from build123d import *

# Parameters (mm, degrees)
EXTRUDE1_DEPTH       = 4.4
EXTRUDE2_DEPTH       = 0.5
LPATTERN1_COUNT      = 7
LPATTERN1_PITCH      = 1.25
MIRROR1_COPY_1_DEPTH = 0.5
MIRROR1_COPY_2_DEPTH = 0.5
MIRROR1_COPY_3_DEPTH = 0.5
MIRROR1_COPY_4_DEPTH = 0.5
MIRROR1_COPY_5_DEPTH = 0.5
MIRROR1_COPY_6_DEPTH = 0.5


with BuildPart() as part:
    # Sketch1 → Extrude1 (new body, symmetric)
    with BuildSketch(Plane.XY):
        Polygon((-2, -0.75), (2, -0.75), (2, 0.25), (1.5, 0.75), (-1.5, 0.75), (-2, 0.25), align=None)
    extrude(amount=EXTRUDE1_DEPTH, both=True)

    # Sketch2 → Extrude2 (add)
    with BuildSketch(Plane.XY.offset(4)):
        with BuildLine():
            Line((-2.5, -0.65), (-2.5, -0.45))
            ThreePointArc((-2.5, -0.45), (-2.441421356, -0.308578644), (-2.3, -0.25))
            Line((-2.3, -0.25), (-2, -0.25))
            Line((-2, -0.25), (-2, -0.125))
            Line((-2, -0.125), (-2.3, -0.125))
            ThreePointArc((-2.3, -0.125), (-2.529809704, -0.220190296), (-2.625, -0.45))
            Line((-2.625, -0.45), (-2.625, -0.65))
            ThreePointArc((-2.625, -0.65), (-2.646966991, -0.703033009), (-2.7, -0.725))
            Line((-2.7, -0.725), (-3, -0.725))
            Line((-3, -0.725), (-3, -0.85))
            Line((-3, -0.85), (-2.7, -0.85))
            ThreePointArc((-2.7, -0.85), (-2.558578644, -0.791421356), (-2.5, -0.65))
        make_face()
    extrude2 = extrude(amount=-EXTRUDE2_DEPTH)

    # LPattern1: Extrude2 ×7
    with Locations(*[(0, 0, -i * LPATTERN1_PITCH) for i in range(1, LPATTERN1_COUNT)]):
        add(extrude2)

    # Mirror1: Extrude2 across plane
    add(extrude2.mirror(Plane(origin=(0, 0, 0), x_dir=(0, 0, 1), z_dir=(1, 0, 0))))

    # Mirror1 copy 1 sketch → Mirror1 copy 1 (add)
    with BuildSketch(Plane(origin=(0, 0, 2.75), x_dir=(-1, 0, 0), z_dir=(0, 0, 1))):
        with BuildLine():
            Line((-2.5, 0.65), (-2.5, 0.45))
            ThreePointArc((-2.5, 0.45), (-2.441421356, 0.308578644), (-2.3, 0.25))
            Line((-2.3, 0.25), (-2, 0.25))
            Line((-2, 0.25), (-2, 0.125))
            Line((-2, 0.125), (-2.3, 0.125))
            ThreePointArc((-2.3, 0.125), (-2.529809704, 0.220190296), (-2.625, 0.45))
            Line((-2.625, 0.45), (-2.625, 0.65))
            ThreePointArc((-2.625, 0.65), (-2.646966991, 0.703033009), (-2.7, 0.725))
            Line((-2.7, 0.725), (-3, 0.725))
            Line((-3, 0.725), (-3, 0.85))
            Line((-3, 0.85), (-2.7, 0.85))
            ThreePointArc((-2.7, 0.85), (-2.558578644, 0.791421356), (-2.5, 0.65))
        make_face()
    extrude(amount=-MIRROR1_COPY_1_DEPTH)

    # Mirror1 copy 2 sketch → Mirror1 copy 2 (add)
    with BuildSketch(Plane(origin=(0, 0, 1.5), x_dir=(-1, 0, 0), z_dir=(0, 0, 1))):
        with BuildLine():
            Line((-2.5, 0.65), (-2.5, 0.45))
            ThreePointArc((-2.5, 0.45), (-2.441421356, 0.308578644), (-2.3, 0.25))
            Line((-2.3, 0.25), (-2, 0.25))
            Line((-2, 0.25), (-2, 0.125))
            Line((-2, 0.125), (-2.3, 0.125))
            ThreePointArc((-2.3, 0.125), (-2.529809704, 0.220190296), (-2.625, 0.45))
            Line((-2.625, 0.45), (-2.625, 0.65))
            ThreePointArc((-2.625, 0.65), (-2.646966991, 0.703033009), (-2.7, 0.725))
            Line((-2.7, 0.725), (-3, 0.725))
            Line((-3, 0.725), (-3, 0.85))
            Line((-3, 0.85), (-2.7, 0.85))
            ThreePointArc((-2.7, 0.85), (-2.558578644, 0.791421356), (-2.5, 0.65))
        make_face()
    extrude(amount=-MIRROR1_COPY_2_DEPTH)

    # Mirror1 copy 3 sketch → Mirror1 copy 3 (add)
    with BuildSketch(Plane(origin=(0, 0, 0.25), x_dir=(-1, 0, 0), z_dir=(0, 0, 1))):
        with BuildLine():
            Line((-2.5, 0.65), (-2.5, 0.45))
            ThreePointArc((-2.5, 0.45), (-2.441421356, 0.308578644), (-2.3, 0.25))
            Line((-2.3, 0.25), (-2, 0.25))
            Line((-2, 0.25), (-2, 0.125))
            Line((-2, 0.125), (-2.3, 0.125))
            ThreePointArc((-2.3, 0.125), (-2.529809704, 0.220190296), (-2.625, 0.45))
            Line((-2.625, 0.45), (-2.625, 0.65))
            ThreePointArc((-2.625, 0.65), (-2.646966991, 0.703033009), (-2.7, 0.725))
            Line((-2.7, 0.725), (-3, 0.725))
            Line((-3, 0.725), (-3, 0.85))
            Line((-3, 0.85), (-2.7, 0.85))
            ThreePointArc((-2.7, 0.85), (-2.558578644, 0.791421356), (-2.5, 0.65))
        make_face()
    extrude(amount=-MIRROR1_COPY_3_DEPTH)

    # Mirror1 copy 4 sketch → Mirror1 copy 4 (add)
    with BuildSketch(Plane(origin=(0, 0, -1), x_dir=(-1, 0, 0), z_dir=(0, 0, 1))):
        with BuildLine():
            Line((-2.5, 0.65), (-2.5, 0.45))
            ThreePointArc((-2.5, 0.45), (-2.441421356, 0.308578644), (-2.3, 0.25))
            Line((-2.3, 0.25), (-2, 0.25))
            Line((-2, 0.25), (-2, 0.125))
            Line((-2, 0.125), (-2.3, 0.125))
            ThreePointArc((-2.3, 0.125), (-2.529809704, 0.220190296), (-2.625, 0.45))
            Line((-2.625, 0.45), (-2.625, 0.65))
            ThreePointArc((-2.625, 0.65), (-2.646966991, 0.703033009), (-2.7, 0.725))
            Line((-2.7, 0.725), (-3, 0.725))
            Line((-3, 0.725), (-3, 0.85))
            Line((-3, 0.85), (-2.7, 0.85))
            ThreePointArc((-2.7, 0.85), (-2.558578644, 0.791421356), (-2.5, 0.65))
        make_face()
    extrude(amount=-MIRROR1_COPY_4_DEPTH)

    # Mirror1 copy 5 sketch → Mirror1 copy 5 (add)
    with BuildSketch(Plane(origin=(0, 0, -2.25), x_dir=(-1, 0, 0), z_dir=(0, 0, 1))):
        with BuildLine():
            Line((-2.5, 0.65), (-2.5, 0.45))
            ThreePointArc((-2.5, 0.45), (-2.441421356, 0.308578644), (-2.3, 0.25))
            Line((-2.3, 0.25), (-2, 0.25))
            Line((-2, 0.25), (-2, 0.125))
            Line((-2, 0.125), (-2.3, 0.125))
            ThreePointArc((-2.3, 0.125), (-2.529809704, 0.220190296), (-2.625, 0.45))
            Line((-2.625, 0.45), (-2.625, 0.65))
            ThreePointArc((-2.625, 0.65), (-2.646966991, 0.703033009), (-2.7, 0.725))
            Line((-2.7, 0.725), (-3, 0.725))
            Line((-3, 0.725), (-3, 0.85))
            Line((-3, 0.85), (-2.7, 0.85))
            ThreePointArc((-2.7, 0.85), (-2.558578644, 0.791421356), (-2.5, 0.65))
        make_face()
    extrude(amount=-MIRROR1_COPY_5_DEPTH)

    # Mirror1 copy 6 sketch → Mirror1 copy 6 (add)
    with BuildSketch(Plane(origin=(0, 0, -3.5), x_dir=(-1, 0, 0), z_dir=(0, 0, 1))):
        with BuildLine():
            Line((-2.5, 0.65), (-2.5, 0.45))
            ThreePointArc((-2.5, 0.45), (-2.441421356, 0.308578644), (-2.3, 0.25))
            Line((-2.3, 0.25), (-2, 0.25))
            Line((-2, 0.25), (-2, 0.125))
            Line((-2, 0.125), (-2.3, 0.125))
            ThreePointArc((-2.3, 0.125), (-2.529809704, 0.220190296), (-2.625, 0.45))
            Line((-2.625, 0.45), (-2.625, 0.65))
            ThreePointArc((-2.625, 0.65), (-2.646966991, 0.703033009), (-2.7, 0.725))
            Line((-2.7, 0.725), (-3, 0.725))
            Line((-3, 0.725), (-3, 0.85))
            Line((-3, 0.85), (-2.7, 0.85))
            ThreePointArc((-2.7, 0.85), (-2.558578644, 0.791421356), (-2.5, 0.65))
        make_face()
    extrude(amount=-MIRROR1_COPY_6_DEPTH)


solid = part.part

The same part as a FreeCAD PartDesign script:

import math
import FreeCAD as App
import Part
import Sketcher


def add_polygon(sketch, points):
    """Adds a closed chain of lines whose ends are joined by coincident constraints."""
    first, n = sketch.GeometryCount, len(points)
    for a, b in zip(points, points[1:] + points[:1]):
        sketch.addGeometry(Part.LineSegment(App.Vector(*a, 0), App.Vector(*b, 0)), False)
    for i in range(n):
        sketch.addConstraint(Sketcher.Constraint("Coincident", first + i, 2, first + (i + 1) % n, 1))

doc = App.newDocument("Part")
body = doc.addObject("PartDesign::Body", "Body")

sketch1 = body.newObject("Sketcher::SketchObject", "Sketch")
sketch1.AttachmentSupport = (doc.getObject("XY_Plane"), [""])
sketch1.MapMode = "FlatFace"
add_polygon(sketch1, [(-2, -0.8), (2, -0.8), (2, 0.2), (1.5, 0.8), (-1.5, 0.8), (-2, 0.2)])
sketch1.addConstraint([
    Sketcher.Constraint("Horizontal", 0),
    Sketcher.Constraint("Vertical", 1),
    Sketcher.Constraint("Horizontal", 3),
    Sketcher.Constraint("Vertical", 5),
    Sketcher.Constraint("Symmetric", 1, 2, 4, 2, -2),
    Sketcher.Constraint("Perpendicular", 2, 4),
    Sketcher.Constraint("Equal", 2, 4),
    Sketcher.Constraint("DistanceX", 0, 1, 0, 2, 4.0),
    Sketcher.Constraint("DistanceX", 3, 2, 3, 1, 3.0),
    Sketcher.Constraint("DistanceY", 1, 1, 1, 2, 1.0),
    Sketcher.Constraint("DistanceY", 0, 2, -1, 1, 0.75),
])
pad1 = body.newObject("PartDesign::Pad", "Pad")
pad1.Profile = sketch1
pad1.Length = 8.8
pad1.Midplane = True

sketch2 = body.newObject("Sketcher::SketchObject", "Sketch001")
sketch2.AttachmentSupport = (doc.getObject("XY_Plane"), [""])
sketch2.MapMode = "FlatFace"
sketch2.AttachmentOffset = App.Placement(App.Vector(0, 0, 4), App.Rotation())
sketch2.addGeometry([
    Part.LineSegment(App.Vector(-2.5, -0.65, 0), App.Vector(-2.5, -0.45, 0)),
    Part.ArcOfCircle(Part.Circle(App.Vector(-2.3, -0.45, 0), App.Vector(0, 0, 1), 0.2), math.radians(90), math.radians(180)),
    Part.LineSegment(App.Vector(-2.3, -0.25, 0), App.Vector(-2, -0.25, 0)),
    Part.LineSegment(App.Vector(-2, -0.25, 0), App.Vector(-2, -0.12, 0)),
    Part.LineSegment(App.Vector(-2, -0.12, 0), App.Vector(-2.3, -0.12, 0)),
    Part.ArcOfCircle(Part.Circle(App.Vector(-2.3, -0.45, 0), App.Vector(0, 0, 1), 0.33), math.radians(90), math.radians(180)),
    Part.LineSegment(App.Vector(-2.62, -0.45, 0), App.Vector(-2.62, -0.65, 0)),
    Part.ArcOfCircle(Part.Circle(App.Vector(-2.7, -0.65, 0), App.Vector(0, 0, 1), 0.07), math.radians(-90), math.radians(0)),
    Part.LineSegment(App.Vector(-2.7, -0.72, 0), App.Vector(-3, -0.72, 0)),
    Part.LineSegment(App.Vector(-3, -0.72, 0), App.Vector(-3, -0.85, 0)),
    Part.LineSegment(App.Vector(-3, -0.85, 0), App.Vector(-2.7, -0.85, 0)),
    Part.ArcOfCircle(Part.Circle(App.Vector(-2.7, -0.65, 0), App.Vector(0, 0, 1), 0.2), math.radians(-90), math.radians(0)),
], False)
sketch2.addConstraint([
    Sketcher.Constraint("Tangent", 0, 2, 1, 2),
    Sketcher.Constraint("Tangent", 1, 1, 2, 1),
    Sketcher.Constraint("Coincident", 2, 2, 3, 1),
    Sketcher.Constraint("Coincident", 3, 2, 4, 1),
    Sketcher.Constraint("Tangent", 4, 2, 5, 1),
    Sketcher.Constraint("Tangent", 5, 2, 6, 1),
    Sketcher.Constraint("Tangent", 6, 2, 7, 2),
    Sketcher.Constraint("Tangent", 7, 1, 8, 1),
    Sketcher.Constraint("Coincident", 8, 2, 9, 1),
    Sketcher.Constraint("Coincident", 9, 2, 10, 1),
    Sketcher.Constraint("Tangent", 10, 2, 11, 1),
    Sketcher.Constraint("Tangent", 11, 2, 0, 1),
    Sketcher.Constraint("Vertical", 0),
    Sketcher.Constraint("Horizontal", 2),
    Sketcher.Constraint("Vertical", 3),
    Sketcher.Constraint("Horizontal", 4),
    Sketcher.Constraint("Vertical", 6),
    Sketcher.Constraint("Horizontal", 8),
    Sketcher.Constraint("Vertical", 9),
    Sketcher.Constraint("Horizontal", 10),
    Sketcher.Constraint("Coincident", 5, 3, 1, 3),
    Sketcher.Constraint("Coincident", 11, 3, 7, 3),
    Sketcher.Constraint("Equal", 1, 11),
    Sketcher.Constraint("Equal", 4, 8),
    Sketcher.Constraint("Radius", 1, 0.2),
    Sketcher.Constraint("DistanceX", 2, 1, 2, 2, 0.3),
    Sketcher.Constraint("DistanceY", 0, 1, 0, 2, 0.2),
    Sketcher.Constraint("DistanceX", 2, 2, -1, 1, 2.0),
    Sketcher.Constraint("Radius", 5, 0.325),
    Sketcher.Constraint("DistanceY", 1, 3, -1, 1, 0.45),
])
pad2 = body.newObject("PartDesign::Pad", "Pad001")
pad2.Profile = sketch2
pad2.Length = 0.5
pad2.Reversed = True
doc.recompute()

linearpattern = body.newObject("PartDesign::LinearPattern", "LinearPattern")
linearpattern.Originals = [pad2]
linearpattern.Direction = (doc.getObject("Z_Axis"), [""])
linearpattern.Mode = "offset"
linearpattern.Offset = 1.25
linearpattern.Occurrences = 7
linearpattern.Reversed = True
body.Tip = linearpattern
doc.recompute()

mirrored = body.newObject("PartDesign::Mirrored", "Mirrored")
mirrored.Originals = [pad2]
mirrored.MirrorPlane = (doc.getObject("YZ_Plane"), [""])
body.Tip = mirrored

sketch3 = body.newObject("Sketcher::SketchObject", "Sketch002")
sketch3.AttachmentSupport = (doc.getObject("XY_Plane"), [""])
sketch3.MapMode = "FlatFace"
sketch3.AttachmentOffset = App.Placement(App.Vector(0, 0, 2.75), App.Rotation())
sketch3.addGeometry([
    Part.LineSegment(App.Vector(2.5, -0.45, 0), App.Vector(2.5, -0.65, 0)),
    Part.ArcOfCircle(Part.Circle(App.Vector(2.7, -0.65, 0), App.Vector(0, 0, 1), 0.2), math.radians(-180), math.radians(-90)),
    Part.LineSegment(App.Vector(2.7, -0.85, 0), App.Vector(3, -0.85, 0)),
    Part.LineSegment(App.Vector(3, -0.85, 0), App.Vector(3, -0.72, 0)),
    Part.LineSegment(App.Vector(3, -0.72, 0), App.Vector(2.7, -0.72, 0)),
    Part.ArcOfCircle(Part.Circle(App.Vector(2.7, -0.65, 0), App.Vector(0, 0, 1), 0.07), math.radians(180), math.radians(270)),
    Part.LineSegment(App.Vector(2.62, -0.65, 0), App.Vector(2.62, -0.45, 0)),
    Part.ArcOfCircle(Part.Circle(App.Vector(2.3, -0.45, 0), App.Vector(0, 0, 1), 0.33), math.radians(0), math.radians(90)),
    Part.LineSegment(App.Vector(2.3, -0.12, 0), App.Vector(2, -0.12, 0)),
    Part.LineSegment(App.Vector(2, -0.12, 0), App.Vector(2, -0.25, 0)),
    Part.LineSegment(App.Vector(2, -0.25, 0), App.Vector(2.3, -0.25, 0)),
    Part.ArcOfCircle(Part.Circle(App.Vector(2.3, -0.45, 0), App.Vector(0, 0, 1), 0.2), math.radians(0), math.radians(90)),
], False)
sketch3.addConstraint([
    Sketcher.Constraint("Tangent", 0, 2, 1, 1),
    Sketcher.Constraint("Tangent", 1, 2, 2, 1),
    Sketcher.Constraint("Coincident", 2, 2, 3, 1),
    Sketcher.Constraint("Coincident", 3, 2, 4, 1),
    Sketcher.Constraint("Tangent", 4, 2, 5, 2),
    Sketcher.Constraint("Tangent", 5, 1, 6, 1),
    Sketcher.Constraint("Tangent", 6, 2, 7, 1),
    Sketcher.Constraint("Tangent", 7, 2, 8, 1),
    Sketcher.Constraint("Coincident", 8, 2, 9, 1),
    Sketcher.Constraint("Coincident", 9, 2, 10, 1),
    Sketcher.Constraint("Tangent", 10, 2, 11, 2),
    Sketcher.Constraint("Tangent", 11, 1, 0, 1),
    Sketcher.Constraint("Vertical", 0),
    Sketcher.Constraint("Horizontal", 2),
    Sketcher.Constraint("Vertical", 3),
    Sketcher.Constraint("Horizontal", 4),
    Sketcher.Constraint("Vertical", 6),
    Sketcher.Constraint("Horizontal", 8),
    Sketcher.Constraint("Vertical", 9),
    Sketcher.Constraint("Horizontal", 10),
    Sketcher.Constraint("Coincident", 5, 3, 1, 3),
    Sketcher.Constraint("Coincident", 11, 3, 7, 3),
    Sketcher.Constraint("Equal", 1, 11),
    Sketcher.Constraint("Equal", 4, 8),
    Sketcher.Constraint("Radius", 1, 0.2),
    Sketcher.Constraint("DistanceX", 2, 1, 2, 2, 0.3),
    Sketcher.Constraint("DistanceY", 0, 2, 0, 1, 0.2),
    Sketcher.Constraint("DistanceX", -1, 1, 2, 2, 3.0),
    Sketcher.Constraint("Radius", 5, 0.075),
    Sketcher.Constraint("DistanceY", 1, 3, -1, 1, 0.65),
])
pad3 = body.newObject("PartDesign::Pad", "Pad002")
pad3.Profile = sketch3
pad3.Length = 0.5
pad3.Reversed = True

sketch4 = body.newObject("Sketcher::SketchObject", "Sketch003")
sketch4.AttachmentSupport = (doc.getObject("XY_Plane"), [""])
sketch4.MapMode = "FlatFace"
sketch4.AttachmentOffset = App.Placement(App.Vector(0, 0, 1.5), App.Rotation())
sketch4.addGeometry([
    Part.LineSegment(App.Vector(2.5, -0.45, 0), App.Vector(2.5, -0.65, 0)),
    Part.ArcOfCircle(Part.Circle(App.Vector(2.7, -0.65, 0), App.Vector(0, 0, 1), 0.2), math.radians(-180), math.radians(-90)),
    Part.LineSegment(App.Vector(2.7, -0.85, 0), App.Vector(3, -0.85, 0)),
    Part.LineSegment(App.Vector(3, -0.85, 0), App.Vector(3, -0.72, 0)),
    Part.LineSegment(App.Vector(3, -0.72, 0), App.Vector(2.7, -0.72, 0)),
    Part.ArcOfCircle(Part.Circle(App.Vector(2.7, -0.65, 0), App.Vector(0, 0, 1), 0.07), math.radians(180), math.radians(270)),
    Part.LineSegment(App.Vector(2.62, -0.65, 0), App.Vector(2.62, -0.45, 0)),
    Part.ArcOfCircle(Part.Circle(App.Vector(2.3, -0.45, 0), App.Vector(0, 0, 1), 0.33), math.radians(0), math.radians(90)),
    Part.LineSegment(App.Vector(2.3, -0.12, 0), App.Vector(2, -0.12, 0)),
    Part.LineSegment(App.Vector(2, -0.12, 0), App.Vector(2, -0.25, 0)),
    Part.LineSegment(App.Vector(2, -0.25, 0), App.Vector(2.3, -0.25, 0)),
    Part.ArcOfCircle(Part.Circle(App.Vector(2.3, -0.45, 0), App.Vector(0, 0, 1), 0.2), math.radians(0), math.radians(90)),
], False)
sketch4.addConstraint([
    Sketcher.Constraint("Tangent", 0, 2, 1, 1),
    Sketcher.Constraint("Tangent", 1, 2, 2, 1),
    Sketcher.Constraint("Coincident", 2, 2, 3, 1),
    Sketcher.Constraint("Coincident", 3, 2, 4, 1),
    Sketcher.Constraint("Tangent", 4, 2, 5, 2),
    Sketcher.Constraint("Tangent", 5, 1, 6, 1),
    Sketcher.Constraint("Tangent", 6, 2, 7, 1),
    Sketcher.Constraint("Tangent", 7, 2, 8, 1),
    Sketcher.Constraint("Coincident", 8, 2, 9, 1),
    Sketcher.Constraint("Coincident", 9, 2, 10, 1),
    Sketcher.Constraint("Tangent", 10, 2, 11, 2),
    Sketcher.Constraint("Tangent", 11, 1, 0, 1),
    Sketcher.Constraint("Vertical", 0),
    Sketcher.Constraint("Horizontal", 2),
    Sketcher.Constraint("Vertical", 3),
    Sketcher.Constraint("Horizontal", 4),
    Sketcher.Constraint("Vertical", 6),
    Sketcher.Constraint("Horizontal", 8),
    Sketcher.Constraint("Vertical", 9),
    Sketcher.Constraint("Horizontal", 10),
    Sketcher.Constraint("Coincident", 5, 3, 1, 3),
    Sketcher.Constraint("Coincident", 11, 3, 7, 3),
    Sketcher.Constraint("Equal", 1, 11),
    Sketcher.Constraint("Equal", 4, 8),
    Sketcher.Constraint("Radius", 1, 0.2),
    Sketcher.Constraint("DistanceX", 2, 1, 2, 2, 0.3),
    Sketcher.Constraint("DistanceY", 0, 2, 0, 1, 0.2),
    Sketcher.Constraint("DistanceX", -1, 1, 2, 2, 3.0),
    Sketcher.Constraint("Radius", 5, 0.075),
    Sketcher.Constraint("DistanceY", 1, 3, -1, 1, 0.65),
])
pad4 = body.newObject("PartDesign::Pad", "Pad003")
pad4.Profile = sketch4
pad4.Length = 0.5
pad4.Reversed = True

sketch5 = body.newObject("Sketcher::SketchObject", "Sketch004")
sketch5.AttachmentSupport = (doc.getObject("XY_Plane"), [""])
sketch5.MapMode = "FlatFace"
sketch5.AttachmentOffset = App.Placement(App.Vector(0, 0, 0.25), App.Rotation())
sketch5.addGeometry([
    Part.LineSegment(App.Vector(2.5, -0.45, 0), App.Vector(2.5, -0.65, 0)),
    Part.ArcOfCircle(Part.Circle(App.Vector(2.7, -0.65, 0), App.Vector(0, 0, 1), 0.2), math.radians(-180), math.radians(-90)),
    Part.LineSegment(App.Vector(2.7, -0.85, 0), App.Vector(3, -0.85, 0)),
    Part.LineSegment(App.Vector(3, -0.85, 0), App.Vector(3, -0.72, 0)),
    Part.LineSegment(App.Vector(3, -0.72, 0), App.Vector(2.7, -0.72, 0)),
    Part.ArcOfCircle(Part.Circle(App.Vector(2.7, -0.65, 0), App.Vector(0, 0, 1), 0.07), math.radians(180), math.radians(270)),
    Part.LineSegment(App.Vector(2.62, -0.65, 0), App.Vector(2.62, -0.45, 0)),
    Part.ArcOfCircle(Part.Circle(App.Vector(2.3, -0.45, 0), App.Vector(0, 0, 1), 0.33), math.radians(0), math.radians(90)),
    Part.LineSegment(App.Vector(2.3, -0.12, 0), App.Vector(2, -0.12, 0)),
    Part.LineSegment(App.Vector(2, -0.12, 0), App.Vector(2, -0.25, 0)),
    Part.LineSegment(App.Vector(2, -0.25, 0), App.Vector(2.3, -0.25, 0)),
    Part.ArcOfCircle(Part.Circle(App.Vector(2.3, -0.45, 0), App.Vector(0, 0, 1), 0.2), math.radians(0), math.radians(90)),
], False)
sketch5.addConstraint([
    Sketcher.Constraint("Tangent", 0, 2, 1, 1),
    Sketcher.Constraint("Tangent", 1, 2, 2, 1),
    Sketcher.Constraint("Coincident", 2, 2, 3, 1),
    Sketcher.Constraint("Coincident", 3, 2, 4, 1),
    Sketcher.Constraint("Tangent", 4, 2, 5, 2),
    Sketcher.Constraint("Tangent", 5, 1, 6, 1),
    Sketcher.Constraint("Tangent", 6, 2, 7, 1),
    Sketcher.Constraint("Tangent", 7, 2, 8, 1),
    Sketcher.Constraint("Coincident", 8, 2, 9, 1),
    Sketcher.Constraint("Coincident", 9, 2, 10, 1),
    Sketcher.Constraint("Tangent", 10, 2, 11, 2),
    Sketcher.Constraint("Tangent", 11, 1, 0, 1),
    Sketcher.Constraint("Vertical", 0),
    Sketcher.Constraint("Horizontal", 2),
    Sketcher.Constraint("Vertical", 3),
    Sketcher.Constraint("Horizontal", 4),
    Sketcher.Constraint("Vertical", 6),
    Sketcher.Constraint("Horizontal", 8),
    Sketcher.Constraint("Vertical", 9),
    Sketcher.Constraint("Horizontal", 10),
    Sketcher.Constraint("Coincident", 5, 3, 1, 3),
    Sketcher.Constraint("Coincident", 11, 3, 7, 3),
    Sketcher.Constraint("Equal", 1, 11),
    Sketcher.Constraint("Equal", 4, 8),
    Sketcher.Constraint("Radius", 1, 0.2),
    Sketcher.Constraint("DistanceX", 2, 1, 2, 2, 0.3),
    Sketcher.Constraint("DistanceY", 0, 2, 0, 1, 0.2),
    Sketcher.Constraint("DistanceX", -1, 1, 2, 2, 3.0),
    Sketcher.Constraint("Radius", 5, 0.075),
    Sketcher.Constraint("DistanceY", 1, 3, -1, 1, 0.65),
])
pad5 = body.newObject("PartDesign::Pad", "Pad004")
pad5.Profile = sketch5
pad5.Length = 0.5
pad5.Reversed = True

sketch6 = body.newObject("Sketcher::SketchObject", "Sketch005")
sketch6.AttachmentSupport = (doc.getObject("XY_Plane"), [""])
sketch6.MapMode = "FlatFace"
sketch6.AttachmentOffset = App.Placement(App.Vector(0, 0, -1), App.Rotation())
sketch6.addGeometry([
    Part.LineSegment(App.Vector(2.5, -0.45, 0), App.Vector(2.5, -0.65, 0)),
    Part.ArcOfCircle(Part.Circle(App.Vector(2.7, -0.65, 0), App.Vector(0, 0, 1), 0.2), math.radians(-180), math.radians(-90)),
    Part.LineSegment(App.Vector(2.7, -0.85, 0), App.Vector(3, -0.85, 0)),
    Part.LineSegment(App.Vector(3, -0.85, 0), App.Vector(3, -0.72, 0)),
    Part.LineSegment(App.Vector(3, -0.72, 0), App.Vector(2.7, -0.72, 0)),
    Part.ArcOfCircle(Part.Circle(App.Vector(2.7, -0.65, 0), App.Vector(0, 0, 1), 0.07), math.radians(180), math.radians(270)),
    Part.LineSegment(App.Vector(2.62, -0.65, 0), App.Vector(2.62, -0.45, 0)),
    Part.ArcOfCircle(Part.Circle(App.Vector(2.3, -0.45, 0), App.Vector(0, 0, 1), 0.33), math.radians(0), math.radians(90)),
    Part.LineSegment(App.Vector(2.3, -0.12, 0), App.Vector(2, -0.12, 0)),
    Part.LineSegment(App.Vector(2, -0.12, 0), App.Vector(2, -0.25, 0)),
    Part.LineSegment(App.Vector(2, -0.25, 0), App.Vector(2.3, -0.25, 0)),
    Part.ArcOfCircle(Part.Circle(App.Vector(2.3, -0.45, 0), App.Vector(0, 0, 1), 0.2), math.radians(0), math.radians(90)),
], False)
sketch6.addConstraint([
    Sketcher.Constraint("Tangent", 0, 2, 1, 1),
    Sketcher.Constraint("Tangent", 1, 2, 2, 1),
    Sketcher.Constraint("Coincident", 2, 2, 3, 1),
    Sketcher.Constraint("Coincident", 3, 2, 4, 1),
    Sketcher.Constraint("Tangent", 4, 2, 5, 2),
    Sketcher.Constraint("Tangent", 5, 1, 6, 1),
    Sketcher.Constraint("Tangent", 6, 2, 7, 1),
    Sketcher.Constraint("Tangent", 7, 2, 8, 1),
    Sketcher.Constraint("Coincident", 8, 2, 9, 1),
    Sketcher.Constraint("Coincident", 9, 2, 10, 1),
    Sketcher.Constraint("Tangent", 10, 2, 11, 2),
    Sketcher.Constraint("Tangent", 11, 1, 0, 1),
    Sketcher.Constraint("Vertical", 0),
    Sketcher.Constraint("Horizontal", 2),
    Sketcher.Constraint("Vertical", 3),
    Sketcher.Constraint("Horizontal", 4),
    Sketcher.Constraint("Vertical", 6),
    Sketcher.Constraint("Horizontal", 8),
    Sketcher.Constraint("Vertical", 9),
    Sketcher.Constraint("Horizontal", 10),
    Sketcher.Constraint("Coincident", 5, 3, 1, 3),
    Sketcher.Constraint("Coincident", 11, 3, 7, 3),
    Sketcher.Constraint("Equal", 1, 11),
    Sketcher.Constraint("Equal", 4, 8),
    Sketcher.Constraint("Radius", 1, 0.2),
    Sketcher.Constraint("DistanceX", 2, 1, 2, 2, 0.3),
    Sketcher.Constraint("DistanceY", 0, 2, 0, 1, 0.2),
    Sketcher.Constraint("DistanceX", -1, 1, 2, 2, 3.0),
    Sketcher.Constraint("Radius", 5, 0.075),
    Sketcher.Constraint("DistanceY", 1, 3, -1, 1, 0.65),
])
pad6 = body.newObject("PartDesign::Pad", "Pad005")
pad6.Profile = sketch6
pad6.Length = 0.5
pad6.Reversed = True

sketch7 = body.newObject("Sketcher::SketchObject", "Sketch006")
sketch7.AttachmentSupport = (doc.getObject("XY_Plane"), [""])
sketch7.MapMode = "FlatFace"
sketch7.AttachmentOffset = App.Placement(App.Vector(0, 0, -2.25), App.Rotation())
sketch7.addGeometry([
    Part.LineSegment(App.Vector(2.5, -0.45, 0), App.Vector(2.5, -0.65, 0)),
    Part.ArcOfCircle(Part.Circle(App.Vector(2.7, -0.65, 0), App.Vector(0, 0, 1), 0.2), math.radians(-180), math.radians(-90)),
    Part.LineSegment(App.Vector(2.7, -0.85, 0), App.Vector(3, -0.85, 0)),
    Part.LineSegment(App.Vector(3, -0.85, 0), App.Vector(3, -0.72, 0)),
    Part.LineSegment(App.Vector(3, -0.72, 0), App.Vector(2.7, -0.72, 0)),
    Part.ArcOfCircle(Part.Circle(App.Vector(2.7, -0.65, 0), App.Vector(0, 0, 1), 0.07), math.radians(180), math.radians(270)),
    Part.LineSegment(App.Vector(2.62, -0.65, 0), App.Vector(2.62, -0.45, 0)),
    Part.ArcOfCircle(Part.Circle(App.Vector(2.3, -0.45, 0), App.Vector(0, 0, 1), 0.33), math.radians(0), math.radians(90)),
    Part.LineSegment(App.Vector(2.3, -0.12, 0), App.Vector(2, -0.12, 0)),
    Part.LineSegment(App.Vector(2, -0.12, 0), App.Vector(2, -0.25, 0)),
    Part.LineSegment(App.Vector(2, -0.25, 0), App.Vector(2.3, -0.25, 0)),
    Part.ArcOfCircle(Part.Circle(App.Vector(2.3, -0.45, 0), App.Vector(0, 0, 1), 0.2), math.radians(0), math.radians(90)),
], False)
sketch7.addConstraint([
    Sketcher.Constraint("Tangent", 0, 2, 1, 1),
    Sketcher.Constraint("Tangent", 1, 2, 2, 1),
    Sketcher.Constraint("Coincident", 2, 2, 3, 1),
    Sketcher.Constraint("Coincident", 3, 2, 4, 1),
    Sketcher.Constraint("Tangent", 4, 2, 5, 2),
    Sketcher.Constraint("Tangent", 5, 1, 6, 1),
    Sketcher.Constraint("Tangent", 6, 2, 7, 1),
    Sketcher.Constraint("Tangent", 7, 2, 8, 1),
    Sketcher.Constraint("Coincident", 8, 2, 9, 1),
    Sketcher.Constraint("Coincident", 9, 2, 10, 1),
    Sketcher.Constraint("Tangent", 10, 2, 11, 2),
    Sketcher.Constraint("Tangent", 11, 1, 0, 1),
    Sketcher.Constraint("Vertical", 0),
    Sketcher.Constraint("Horizontal", 2),
    Sketcher.Constraint("Vertical", 3),
    Sketcher.Constraint("Horizontal", 4),
    Sketcher.Constraint("Vertical", 6),
    Sketcher.Constraint("Horizontal", 8),
    Sketcher.Constraint("Vertical", 9),
    Sketcher.Constraint("Horizontal", 10),
    Sketcher.Constraint("Coincident", 5, 3, 1, 3),
    Sketcher.Constraint("Coincident", 11, 3, 7, 3),
    Sketcher.Constraint("Equal", 1, 11),
    Sketcher.Constraint("Equal", 4, 8),
    Sketcher.Constraint("Radius", 1, 0.2),
    Sketcher.Constraint("DistanceX", 2, 1, 2, 2, 0.3),
    Sketcher.Constraint("DistanceY", 0, 2, 0, 1, 0.2),
    Sketcher.Constraint("DistanceX", -1, 1, 2, 2, 3.0),
    Sketcher.Constraint("Radius", 5, 0.075),
    Sketcher.Constraint("DistanceY", 1, 3, -1, 1, 0.65),
])
pad7 = body.newObject("PartDesign::Pad", "Pad006")
pad7.Profile = sketch7
pad7.Length = 0.5
pad7.Reversed = True

sketch8 = body.newObject("Sketcher::SketchObject", "Sketch007")
sketch8.AttachmentSupport = (doc.getObject("XY_Plane"), [""])
sketch8.MapMode = "FlatFace"
sketch8.AttachmentOffset = App.Placement(App.Vector(0, 0, -3.5), App.Rotation())
sketch8.addGeometry([
    Part.LineSegment(App.Vector(2.5, -0.45, 0), App.Vector(2.5, -0.65, 0)),
    Part.ArcOfCircle(Part.Circle(App.Vector(2.7, -0.65, 0), App.Vector(0, 0, 1), 0.2), math.radians(-180), math.radians(-90)),
    Part.LineSegment(App.Vector(2.7, -0.85, 0), App.Vector(3, -0.85, 0)),
    Part.LineSegment(App.Vector(3, -0.85, 0), App.Vector(3, -0.72, 0)),
    Part.LineSegment(App.Vector(3, -0.72, 0), App.Vector(2.7, -0.72, 0)),
    Part.ArcOfCircle(Part.Circle(App.Vector(2.7, -0.65, 0), App.Vector(0, 0, 1), 0.07), math.radians(180), math.radians(270)),
    Part.LineSegment(App.Vector(2.62, -0.65, 0), App.Vector(2.62, -0.45, 0)),
    Part.ArcOfCircle(Part.Circle(App.Vector(2.3, -0.45, 0), App.Vector(0, 0, 1), 0.33), math.radians(0), math.radians(90)),
    Part.LineSegment(App.Vector(2.3, -0.12, 0), App.Vector(2, -0.12, 0)),
    Part.LineSegment(App.Vector(2, -0.12, 0), App.Vector(2, -0.25, 0)),
    Part.LineSegment(App.Vector(2, -0.25, 0), App.Vector(2.3, -0.25, 0)),
    Part.ArcOfCircle(Part.Circle(App.Vector(2.3, -0.45, 0), App.Vector(0, 0, 1), 0.2), math.radians(0), math.radians(90)),
], False)
sketch8.addConstraint([
    Sketcher.Constraint("Tangent", 0, 2, 1, 1),
    Sketcher.Constraint("Tangent", 1, 2, 2, 1),
    Sketcher.Constraint("Coincident", 2, 2, 3, 1),
    Sketcher.Constraint("Coincident", 3, 2, 4, 1),
    Sketcher.Constraint("Tangent", 4, 2, 5, 2),
    Sketcher.Constraint("Tangent", 5, 1, 6, 1),
    Sketcher.Constraint("Tangent", 6, 2, 7, 1),
    Sketcher.Constraint("Tangent", 7, 2, 8, 1),
    Sketcher.Constraint("Coincident", 8, 2, 9, 1),
    Sketcher.Constraint("Coincident", 9, 2, 10, 1),
    Sketcher.Constraint("Tangent", 10, 2, 11, 2),
    Sketcher.Constraint("Tangent", 11, 1, 0, 1),
    Sketcher.Constraint("Vertical", 0),
    Sketcher.Constraint("Horizontal", 2),
    Sketcher.Constraint("Vertical", 3),
    Sketcher.Constraint("Horizontal", 4),
    Sketcher.Constraint("Vertical", 6),
    Sketcher.Constraint("Horizontal", 8),
    Sketcher.Constraint("Vertical", 9),
    Sketcher.Constraint("Horizontal", 10),
    Sketcher.Constraint("Coincident", 5, 3, 1, 3),
    Sketcher.Constraint("Coincident", 11, 3, 7, 3),
    Sketcher.Constraint("Equal", 1, 11),
    Sketcher.Constraint("Equal", 4, 8),
    Sketcher.Constraint("Radius", 1, 0.2),
    Sketcher.Constraint("DistanceX", 2, 1, 2, 2, 0.3),
    Sketcher.Constraint("DistanceY", 0, 2, 0, 1, 0.2),
    Sketcher.Constraint("DistanceX", -1, 1, 2, 2, 3.0),
    Sketcher.Constraint("Radius", 5, 0.075),
    Sketcher.Constraint("DistanceY", 1, 3, -1, 1, 0.65),
])
pad8 = body.newObject("PartDesign::Pad", "Pad007")
pad8.Profile = sketch8
pad8.Length = 0.5
pad8.Reversed = True

doc.recompute()
